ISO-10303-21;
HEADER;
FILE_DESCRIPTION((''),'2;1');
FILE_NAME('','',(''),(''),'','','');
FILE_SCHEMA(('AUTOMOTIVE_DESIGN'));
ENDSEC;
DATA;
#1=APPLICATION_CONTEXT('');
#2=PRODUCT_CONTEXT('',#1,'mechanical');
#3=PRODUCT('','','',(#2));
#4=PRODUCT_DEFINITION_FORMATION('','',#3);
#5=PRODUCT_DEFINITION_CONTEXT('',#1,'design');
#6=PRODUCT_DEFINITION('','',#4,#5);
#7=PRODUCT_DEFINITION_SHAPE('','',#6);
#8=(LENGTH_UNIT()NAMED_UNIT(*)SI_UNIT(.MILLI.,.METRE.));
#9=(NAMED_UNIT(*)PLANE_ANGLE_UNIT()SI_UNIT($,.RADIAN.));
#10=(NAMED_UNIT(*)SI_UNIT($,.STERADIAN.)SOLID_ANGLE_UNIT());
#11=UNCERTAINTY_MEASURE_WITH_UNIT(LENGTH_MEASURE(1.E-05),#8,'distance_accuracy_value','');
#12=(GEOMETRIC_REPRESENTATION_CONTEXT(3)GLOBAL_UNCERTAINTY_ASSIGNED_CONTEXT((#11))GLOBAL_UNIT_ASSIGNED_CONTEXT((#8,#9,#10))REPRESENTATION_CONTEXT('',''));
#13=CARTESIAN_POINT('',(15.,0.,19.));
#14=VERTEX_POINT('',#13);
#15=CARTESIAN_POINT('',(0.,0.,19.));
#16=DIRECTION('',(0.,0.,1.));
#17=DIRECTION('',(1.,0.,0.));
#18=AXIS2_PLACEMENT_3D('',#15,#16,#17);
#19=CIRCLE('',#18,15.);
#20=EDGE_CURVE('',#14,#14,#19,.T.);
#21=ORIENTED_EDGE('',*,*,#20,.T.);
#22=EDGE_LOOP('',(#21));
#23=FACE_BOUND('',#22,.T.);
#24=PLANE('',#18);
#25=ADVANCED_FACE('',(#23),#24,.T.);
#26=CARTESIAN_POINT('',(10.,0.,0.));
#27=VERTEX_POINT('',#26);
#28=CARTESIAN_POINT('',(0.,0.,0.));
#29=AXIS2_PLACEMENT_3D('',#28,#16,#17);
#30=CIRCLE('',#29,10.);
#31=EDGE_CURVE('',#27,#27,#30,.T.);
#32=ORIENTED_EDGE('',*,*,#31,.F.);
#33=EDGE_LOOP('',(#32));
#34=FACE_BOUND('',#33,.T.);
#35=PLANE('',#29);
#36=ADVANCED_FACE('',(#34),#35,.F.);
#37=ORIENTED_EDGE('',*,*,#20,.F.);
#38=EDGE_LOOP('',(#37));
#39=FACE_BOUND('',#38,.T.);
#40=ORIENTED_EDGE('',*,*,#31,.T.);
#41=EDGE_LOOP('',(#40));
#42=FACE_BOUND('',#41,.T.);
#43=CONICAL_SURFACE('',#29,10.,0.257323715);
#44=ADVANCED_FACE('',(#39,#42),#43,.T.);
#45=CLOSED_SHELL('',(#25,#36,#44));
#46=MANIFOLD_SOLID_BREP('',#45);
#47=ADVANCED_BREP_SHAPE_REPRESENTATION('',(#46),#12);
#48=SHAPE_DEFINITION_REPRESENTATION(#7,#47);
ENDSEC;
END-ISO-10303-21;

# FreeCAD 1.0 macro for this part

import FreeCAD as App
import Part
import Sketcher
Q = App.Units.Quantity

doc = App.newDocument("Part")
body = doc.addObject("PartDesign::Body", "Body")

# Sketch on XY plane
sketch1 = body.newObject("Sketcher::SketchObject", "Sketch")
sketch1.AttachmentSupport = (doc.getObject("XY_Plane"), [""])
sketch1.MapMode = "FlatFace"
sketch1.addGeometry(Part.Circle(App.Vector(0, 0, 0), App.Vector(0, 0, 1), 10), False)
sketch1.addConstraint(Sketcher.Constraint("Coincident", 0, 3, -1, 1))
sketch1.addConstraint(Sketcher.Constraint("Diameter", 0, Q("20 mm")))

# Sketch on XY plane
sketch2 = body.newObject("Sketcher::SketchObject", "Sketch001")
sketch2.AttachmentSupport = (doc.getObject("XY_Plane"), [""])
sketch2.MapMode = "FlatFace"
sketch2.AttachmentOffset = App.Placement(App.Vector(0, 0, 19), App.Rotation())
sketch2.addGeometry(Part.Circle(App.Vector(0, 0, 0), App.Vector(0, 0, 1), 15), False)
sketch2.addConstraint(Sketcher.Constraint("Coincident", 0, 3, -1, 1))
sketch2.addConstraint(Sketcher.Constraint("Diameter", 0, Q("30 mm")))

additiveloft = body.newObject("PartDesign::AdditiveLoft", "AdditiveLoft")
additiveloft.Profile = sketch1
additiveloft.Sections = [sketch2]

doc.recompute()
